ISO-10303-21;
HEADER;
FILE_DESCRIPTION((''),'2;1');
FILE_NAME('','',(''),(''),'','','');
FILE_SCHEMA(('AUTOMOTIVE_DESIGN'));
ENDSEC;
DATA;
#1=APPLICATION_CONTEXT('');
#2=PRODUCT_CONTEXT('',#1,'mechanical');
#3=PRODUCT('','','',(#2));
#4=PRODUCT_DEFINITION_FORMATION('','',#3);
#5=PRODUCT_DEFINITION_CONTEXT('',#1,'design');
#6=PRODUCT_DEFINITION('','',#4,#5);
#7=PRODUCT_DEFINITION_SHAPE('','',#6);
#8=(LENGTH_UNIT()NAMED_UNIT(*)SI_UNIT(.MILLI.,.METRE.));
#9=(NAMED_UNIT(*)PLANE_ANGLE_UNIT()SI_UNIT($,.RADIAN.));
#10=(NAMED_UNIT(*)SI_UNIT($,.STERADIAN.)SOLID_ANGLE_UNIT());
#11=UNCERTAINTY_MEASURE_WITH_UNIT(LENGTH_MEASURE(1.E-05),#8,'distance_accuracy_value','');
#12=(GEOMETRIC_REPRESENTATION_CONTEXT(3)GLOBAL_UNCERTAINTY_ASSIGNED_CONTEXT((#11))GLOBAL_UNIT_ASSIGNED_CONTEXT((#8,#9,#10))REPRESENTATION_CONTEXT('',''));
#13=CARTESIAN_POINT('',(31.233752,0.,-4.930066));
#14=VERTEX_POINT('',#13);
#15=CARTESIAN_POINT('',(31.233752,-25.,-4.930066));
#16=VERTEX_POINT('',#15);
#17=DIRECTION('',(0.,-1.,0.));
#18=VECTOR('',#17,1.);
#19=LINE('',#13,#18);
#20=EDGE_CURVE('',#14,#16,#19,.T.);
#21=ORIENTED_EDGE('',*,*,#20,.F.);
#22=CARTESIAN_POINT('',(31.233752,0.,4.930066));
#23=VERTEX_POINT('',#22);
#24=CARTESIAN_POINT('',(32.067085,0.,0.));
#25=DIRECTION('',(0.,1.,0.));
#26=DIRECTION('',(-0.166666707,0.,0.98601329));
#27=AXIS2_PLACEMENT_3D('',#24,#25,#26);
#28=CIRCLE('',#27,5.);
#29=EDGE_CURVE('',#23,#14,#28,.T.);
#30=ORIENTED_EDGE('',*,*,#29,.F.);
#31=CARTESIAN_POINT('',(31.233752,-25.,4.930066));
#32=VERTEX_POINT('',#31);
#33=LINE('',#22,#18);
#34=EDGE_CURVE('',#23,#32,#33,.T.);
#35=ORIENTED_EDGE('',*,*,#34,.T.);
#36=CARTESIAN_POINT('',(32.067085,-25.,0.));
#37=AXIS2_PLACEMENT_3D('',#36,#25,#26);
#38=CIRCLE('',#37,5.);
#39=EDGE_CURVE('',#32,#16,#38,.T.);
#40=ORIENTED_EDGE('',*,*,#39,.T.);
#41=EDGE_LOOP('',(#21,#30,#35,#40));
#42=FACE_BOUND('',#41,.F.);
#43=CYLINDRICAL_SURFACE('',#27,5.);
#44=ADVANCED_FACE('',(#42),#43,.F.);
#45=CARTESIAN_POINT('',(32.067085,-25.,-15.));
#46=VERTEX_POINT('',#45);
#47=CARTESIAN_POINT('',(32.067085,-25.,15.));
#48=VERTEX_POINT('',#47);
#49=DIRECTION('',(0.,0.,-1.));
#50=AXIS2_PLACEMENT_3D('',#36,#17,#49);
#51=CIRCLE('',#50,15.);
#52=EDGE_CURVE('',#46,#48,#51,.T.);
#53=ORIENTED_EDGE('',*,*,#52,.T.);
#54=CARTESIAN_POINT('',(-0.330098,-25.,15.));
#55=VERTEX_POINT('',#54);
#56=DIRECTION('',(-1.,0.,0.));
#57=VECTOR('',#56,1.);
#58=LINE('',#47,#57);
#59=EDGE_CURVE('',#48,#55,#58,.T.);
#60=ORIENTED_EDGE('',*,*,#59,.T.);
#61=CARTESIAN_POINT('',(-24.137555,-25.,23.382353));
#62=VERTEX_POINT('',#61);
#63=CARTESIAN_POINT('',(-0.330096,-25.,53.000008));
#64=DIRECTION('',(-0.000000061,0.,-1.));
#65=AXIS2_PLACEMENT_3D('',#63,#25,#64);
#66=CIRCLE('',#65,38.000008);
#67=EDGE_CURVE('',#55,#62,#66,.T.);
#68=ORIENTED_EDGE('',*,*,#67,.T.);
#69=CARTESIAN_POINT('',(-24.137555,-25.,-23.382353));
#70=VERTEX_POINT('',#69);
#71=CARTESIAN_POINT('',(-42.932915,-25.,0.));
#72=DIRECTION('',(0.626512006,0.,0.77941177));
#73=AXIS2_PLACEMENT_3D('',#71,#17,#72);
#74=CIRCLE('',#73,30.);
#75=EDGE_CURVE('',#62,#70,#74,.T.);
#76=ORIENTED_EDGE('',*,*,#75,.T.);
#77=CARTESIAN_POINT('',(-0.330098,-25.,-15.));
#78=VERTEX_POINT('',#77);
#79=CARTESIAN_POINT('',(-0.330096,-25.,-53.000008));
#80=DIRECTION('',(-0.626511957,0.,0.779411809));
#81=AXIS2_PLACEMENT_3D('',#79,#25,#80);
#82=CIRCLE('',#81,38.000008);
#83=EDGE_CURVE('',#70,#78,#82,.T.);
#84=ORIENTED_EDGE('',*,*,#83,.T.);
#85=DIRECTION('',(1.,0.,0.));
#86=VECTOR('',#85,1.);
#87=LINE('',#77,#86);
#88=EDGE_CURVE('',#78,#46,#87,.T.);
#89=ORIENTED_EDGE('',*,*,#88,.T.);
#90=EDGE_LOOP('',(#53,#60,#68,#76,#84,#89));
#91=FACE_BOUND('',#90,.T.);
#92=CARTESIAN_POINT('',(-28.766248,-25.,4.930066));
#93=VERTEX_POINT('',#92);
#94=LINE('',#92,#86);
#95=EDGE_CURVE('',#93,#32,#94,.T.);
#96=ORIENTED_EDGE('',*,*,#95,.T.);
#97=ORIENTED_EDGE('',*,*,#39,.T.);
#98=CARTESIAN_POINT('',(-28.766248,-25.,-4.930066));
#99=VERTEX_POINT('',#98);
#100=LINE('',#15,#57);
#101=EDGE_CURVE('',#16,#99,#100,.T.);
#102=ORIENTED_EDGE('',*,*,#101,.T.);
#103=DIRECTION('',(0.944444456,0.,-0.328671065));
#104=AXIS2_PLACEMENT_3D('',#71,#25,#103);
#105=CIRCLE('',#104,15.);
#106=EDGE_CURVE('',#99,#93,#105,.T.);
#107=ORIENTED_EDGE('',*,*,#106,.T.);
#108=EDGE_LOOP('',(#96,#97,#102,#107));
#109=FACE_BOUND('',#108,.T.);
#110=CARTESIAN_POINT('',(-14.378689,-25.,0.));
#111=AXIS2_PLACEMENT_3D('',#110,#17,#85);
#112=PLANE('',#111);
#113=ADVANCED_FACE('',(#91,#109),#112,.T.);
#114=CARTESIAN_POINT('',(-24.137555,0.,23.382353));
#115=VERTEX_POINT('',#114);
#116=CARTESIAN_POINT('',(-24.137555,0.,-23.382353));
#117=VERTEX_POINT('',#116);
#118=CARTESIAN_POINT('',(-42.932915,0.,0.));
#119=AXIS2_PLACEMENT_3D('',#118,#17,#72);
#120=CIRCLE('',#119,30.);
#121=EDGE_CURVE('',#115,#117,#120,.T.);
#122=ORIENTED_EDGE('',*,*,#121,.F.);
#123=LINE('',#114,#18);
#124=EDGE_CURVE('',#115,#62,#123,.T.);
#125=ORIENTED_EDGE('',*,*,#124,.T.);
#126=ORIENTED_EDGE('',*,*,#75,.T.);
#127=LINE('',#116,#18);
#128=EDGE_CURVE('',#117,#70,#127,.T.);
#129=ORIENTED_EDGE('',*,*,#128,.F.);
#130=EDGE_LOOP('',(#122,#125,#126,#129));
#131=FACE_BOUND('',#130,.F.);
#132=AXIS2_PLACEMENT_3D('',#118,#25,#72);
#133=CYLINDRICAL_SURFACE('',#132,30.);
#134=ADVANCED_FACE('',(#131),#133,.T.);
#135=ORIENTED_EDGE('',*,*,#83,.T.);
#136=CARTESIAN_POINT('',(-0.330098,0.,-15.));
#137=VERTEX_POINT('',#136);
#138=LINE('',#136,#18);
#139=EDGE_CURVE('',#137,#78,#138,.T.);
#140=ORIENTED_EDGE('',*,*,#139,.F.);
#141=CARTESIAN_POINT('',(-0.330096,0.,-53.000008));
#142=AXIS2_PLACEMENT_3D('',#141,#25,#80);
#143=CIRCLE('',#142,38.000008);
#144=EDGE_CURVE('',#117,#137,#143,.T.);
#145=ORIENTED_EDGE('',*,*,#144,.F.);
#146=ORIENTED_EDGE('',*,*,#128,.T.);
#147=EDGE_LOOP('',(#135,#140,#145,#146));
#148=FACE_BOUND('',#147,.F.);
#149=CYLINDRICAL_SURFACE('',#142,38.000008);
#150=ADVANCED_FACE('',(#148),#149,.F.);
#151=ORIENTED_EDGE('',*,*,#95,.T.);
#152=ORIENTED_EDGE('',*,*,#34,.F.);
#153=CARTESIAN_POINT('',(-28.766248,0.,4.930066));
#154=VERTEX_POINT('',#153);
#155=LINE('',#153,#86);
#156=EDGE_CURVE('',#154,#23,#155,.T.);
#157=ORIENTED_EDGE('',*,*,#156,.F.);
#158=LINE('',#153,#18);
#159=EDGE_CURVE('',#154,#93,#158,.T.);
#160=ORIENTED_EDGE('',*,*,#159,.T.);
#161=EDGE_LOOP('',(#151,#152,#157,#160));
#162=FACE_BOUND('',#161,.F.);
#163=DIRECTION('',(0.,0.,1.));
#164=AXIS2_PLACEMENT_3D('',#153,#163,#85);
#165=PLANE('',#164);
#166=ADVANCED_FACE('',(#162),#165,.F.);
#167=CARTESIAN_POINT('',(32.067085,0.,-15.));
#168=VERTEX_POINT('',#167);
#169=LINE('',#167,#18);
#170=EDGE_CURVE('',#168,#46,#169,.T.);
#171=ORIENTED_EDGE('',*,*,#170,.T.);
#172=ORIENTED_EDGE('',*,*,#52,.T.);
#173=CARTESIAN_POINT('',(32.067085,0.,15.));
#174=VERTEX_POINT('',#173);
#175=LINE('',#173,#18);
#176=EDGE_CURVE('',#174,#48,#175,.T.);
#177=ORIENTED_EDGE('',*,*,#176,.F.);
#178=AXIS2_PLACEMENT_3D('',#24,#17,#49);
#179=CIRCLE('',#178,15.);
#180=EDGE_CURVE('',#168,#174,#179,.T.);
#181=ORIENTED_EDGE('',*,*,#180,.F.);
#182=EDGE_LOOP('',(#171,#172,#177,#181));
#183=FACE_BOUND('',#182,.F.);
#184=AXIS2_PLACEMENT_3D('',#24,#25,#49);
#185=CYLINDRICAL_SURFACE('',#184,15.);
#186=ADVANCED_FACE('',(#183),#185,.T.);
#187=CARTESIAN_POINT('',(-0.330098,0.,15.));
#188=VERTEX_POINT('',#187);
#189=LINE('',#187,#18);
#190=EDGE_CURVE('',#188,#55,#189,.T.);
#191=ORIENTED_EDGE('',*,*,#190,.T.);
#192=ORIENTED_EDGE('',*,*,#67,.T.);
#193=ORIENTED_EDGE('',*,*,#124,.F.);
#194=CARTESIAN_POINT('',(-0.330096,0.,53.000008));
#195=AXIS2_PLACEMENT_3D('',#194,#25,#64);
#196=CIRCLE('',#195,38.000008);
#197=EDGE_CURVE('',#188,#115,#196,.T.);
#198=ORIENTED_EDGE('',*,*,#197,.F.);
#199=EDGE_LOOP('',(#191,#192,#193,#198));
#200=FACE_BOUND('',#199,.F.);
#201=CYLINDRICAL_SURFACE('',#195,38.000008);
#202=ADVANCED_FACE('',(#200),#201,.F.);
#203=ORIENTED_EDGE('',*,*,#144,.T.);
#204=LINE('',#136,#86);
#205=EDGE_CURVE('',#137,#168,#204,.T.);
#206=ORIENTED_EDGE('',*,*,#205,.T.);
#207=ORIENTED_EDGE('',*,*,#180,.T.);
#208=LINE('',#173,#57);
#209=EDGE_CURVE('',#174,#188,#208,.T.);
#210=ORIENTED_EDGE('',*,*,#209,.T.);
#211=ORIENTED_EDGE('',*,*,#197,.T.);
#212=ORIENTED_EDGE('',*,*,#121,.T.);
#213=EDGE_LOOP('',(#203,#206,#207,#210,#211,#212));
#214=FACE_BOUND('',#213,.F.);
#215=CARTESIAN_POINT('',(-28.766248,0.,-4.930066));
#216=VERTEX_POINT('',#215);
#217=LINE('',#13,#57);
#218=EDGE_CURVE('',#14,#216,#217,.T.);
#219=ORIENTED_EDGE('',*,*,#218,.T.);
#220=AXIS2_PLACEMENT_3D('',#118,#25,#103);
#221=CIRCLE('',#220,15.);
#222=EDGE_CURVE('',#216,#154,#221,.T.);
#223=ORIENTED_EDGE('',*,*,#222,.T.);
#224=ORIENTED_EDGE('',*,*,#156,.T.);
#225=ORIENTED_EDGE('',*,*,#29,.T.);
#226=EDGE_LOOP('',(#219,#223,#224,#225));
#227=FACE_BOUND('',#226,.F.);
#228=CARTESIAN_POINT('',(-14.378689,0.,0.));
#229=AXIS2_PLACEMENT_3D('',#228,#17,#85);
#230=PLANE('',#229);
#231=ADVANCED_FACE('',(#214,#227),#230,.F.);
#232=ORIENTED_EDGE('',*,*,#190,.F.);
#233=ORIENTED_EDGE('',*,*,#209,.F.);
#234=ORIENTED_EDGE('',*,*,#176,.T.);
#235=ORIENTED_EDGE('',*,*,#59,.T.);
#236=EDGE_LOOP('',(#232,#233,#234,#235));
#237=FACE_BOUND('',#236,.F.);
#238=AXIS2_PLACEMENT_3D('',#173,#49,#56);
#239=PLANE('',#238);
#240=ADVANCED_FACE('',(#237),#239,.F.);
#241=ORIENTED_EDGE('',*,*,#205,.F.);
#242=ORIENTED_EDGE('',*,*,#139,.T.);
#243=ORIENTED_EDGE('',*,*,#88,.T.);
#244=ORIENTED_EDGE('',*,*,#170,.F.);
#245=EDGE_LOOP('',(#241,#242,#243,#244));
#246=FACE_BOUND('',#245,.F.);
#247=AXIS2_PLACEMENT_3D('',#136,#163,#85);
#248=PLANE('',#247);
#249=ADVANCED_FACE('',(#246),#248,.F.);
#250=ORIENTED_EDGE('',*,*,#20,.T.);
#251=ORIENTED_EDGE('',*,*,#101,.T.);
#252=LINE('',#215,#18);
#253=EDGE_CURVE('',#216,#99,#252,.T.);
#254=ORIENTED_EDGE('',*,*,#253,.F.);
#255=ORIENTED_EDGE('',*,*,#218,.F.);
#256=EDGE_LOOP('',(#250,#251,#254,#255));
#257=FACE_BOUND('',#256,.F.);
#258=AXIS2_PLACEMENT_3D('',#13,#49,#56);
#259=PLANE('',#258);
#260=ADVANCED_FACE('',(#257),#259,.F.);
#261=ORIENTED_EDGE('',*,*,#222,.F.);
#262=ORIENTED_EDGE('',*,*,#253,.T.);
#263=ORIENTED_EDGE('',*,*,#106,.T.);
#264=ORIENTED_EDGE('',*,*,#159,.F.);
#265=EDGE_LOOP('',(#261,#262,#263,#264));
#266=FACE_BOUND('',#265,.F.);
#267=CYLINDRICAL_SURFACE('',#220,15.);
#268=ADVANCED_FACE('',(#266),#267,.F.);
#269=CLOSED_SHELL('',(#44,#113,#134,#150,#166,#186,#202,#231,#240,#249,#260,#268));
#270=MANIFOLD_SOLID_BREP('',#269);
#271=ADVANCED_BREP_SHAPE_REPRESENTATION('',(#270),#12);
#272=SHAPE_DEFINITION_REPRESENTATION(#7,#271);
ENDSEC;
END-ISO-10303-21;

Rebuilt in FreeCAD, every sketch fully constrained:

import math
import FreeCAD as App
import Part
import Sketcher

doc = App.newDocument("Part")
body = doc.addObject("PartDesign::Body", "Body")

# Sketch on XZ plane
sketch1 = body.newObject("Sketcher::SketchObject", "Sketch")
sketch1.AttachmentSupport = (doc.getObject("XZ_Plane"), [""])
sketch1.MapMode = "FlatFace"
sketch1.addGeometry([
    Part.ArcOfCircle(Part.Circle(App.Vector(-0.3, 53, 0), App.Vector(0, 0, 1), 38), math.radians(-129), math.radians(-90)),  # 0
    Part.ArcOfCircle(Part.Circle(App.Vector(-42.9, 0, 0), App.Vector(0, 0, 1), 30), math.radians(51), math.radians(309)),  # 1
    Part.ArcOfCircle(Part.Circle(App.Vector(-0.3, -53, 0), App.Vector(0, 0, 1), 38), math.radians(90), math.radians(129)),  # 2
    Part.LineSegment(App.Vector(-0.3, -15, 0), App.Vector(32.1, -15, 0)),  # 3
    Part.ArcOfCircle(Part.Circle(App.Vector(32.1, 0, 0), App.Vector(0, 0, 1), 15), math.radians(-90), math.radians(90)),  # 4
    Part.LineSegment(App.Vector(32.1, 15, 0), App.Vector(-0.3, 15, 0)),  # 5
    Part.LineSegment(App.Vector(31.2, -4.9, 0), App.Vector(-28.8, -4.9, 0)),  # 6
    Part.ArcOfCircle(Part.Circle(App.Vector(-42.9, 0, 0), App.Vector(0, 0, 1), 15), math.radians(19), math.radians(341)),  # 7
    Part.LineSegment(App.Vector(-28.8, 4.9, 0), App.Vector(31.2, 4.9, 0)),  # 8
    Part.ArcOfCircle(Part.Circle(App.Vector(32.1, 0, 0), App.Vector(0, 0, 1), 5), math.radians(-100), math.radians(100)),  # 9
], False)
sketch1.addConstraint([
    Sketcher.Constraint("Tangent", 0, 1, 1, 1),
    Sketcher.Constraint("Tangent", 1, 2, 2, 2),
    Sketcher.Constraint("Tangent", 2, 1, 3, 1),
    Sketcher.Constraint("Tangent", 3, 2, 4, 1),
    Sketcher.Constraint("Tangent", 4, 2, 5, 1),
    Sketcher.Constraint("Tangent", 5, 2, 0, 2),
    Sketcher.Constraint("Coincident", 6, 2, 7, 2),
    Sketcher.Constraint("Coincident", 7, 1, 8, 1),
    Sketcher.Constraint("Coincident", 8, 2, 9, 2),
    Sketcher.Constraint("Coincident", 9, 1, 6, 1),
    Sketcher.Constraint("Horizontal", 3),
    Sketcher.Constraint("Horizontal", 5),
    Sketcher.Constraint("Horizontal", 6),
    Sketcher.Constraint("Horizontal", 8),
    Sketcher.Constraint("Coincident", 7, 3, 1, 3),
    Sketcher.Constraint("Coincident", 9, 3, 4, 3),
    Sketcher.Constraint("Equal", 0, 2),
    Sketcher.Constraint("Equal", 4, 7),
    Sketcher.Constraint("Symmetric", 0, 3, 2, 3, -1),
    Sketcher.Constraint("Vertical", 6, 2, 7, 1),
    Sketcher.Constraint("Radius", 1, 30.0),
    Sketcher.Constraint("Radius", 4, 15.0),
    Sketcher.Constraint("Radius", 9, 5.0),
    Sketcher.Constraint("DistanceX", 6, 2, 6, 1, 60.0),
    Sketcher.Constraint("DistanceX", 1, 3, 4, 3, 75.0),
    Sketcher.Constraint("Radius", 0, 38.000008),
    Sketcher.Constraint("DistanceX", 6, 2, -1, 1, 28.766248),
])
pad1 = body.newObject("PartDesign::Pad", "Pad")
pad1.Profile = sketch1
pad1.Length = 25

doc.recompute()
